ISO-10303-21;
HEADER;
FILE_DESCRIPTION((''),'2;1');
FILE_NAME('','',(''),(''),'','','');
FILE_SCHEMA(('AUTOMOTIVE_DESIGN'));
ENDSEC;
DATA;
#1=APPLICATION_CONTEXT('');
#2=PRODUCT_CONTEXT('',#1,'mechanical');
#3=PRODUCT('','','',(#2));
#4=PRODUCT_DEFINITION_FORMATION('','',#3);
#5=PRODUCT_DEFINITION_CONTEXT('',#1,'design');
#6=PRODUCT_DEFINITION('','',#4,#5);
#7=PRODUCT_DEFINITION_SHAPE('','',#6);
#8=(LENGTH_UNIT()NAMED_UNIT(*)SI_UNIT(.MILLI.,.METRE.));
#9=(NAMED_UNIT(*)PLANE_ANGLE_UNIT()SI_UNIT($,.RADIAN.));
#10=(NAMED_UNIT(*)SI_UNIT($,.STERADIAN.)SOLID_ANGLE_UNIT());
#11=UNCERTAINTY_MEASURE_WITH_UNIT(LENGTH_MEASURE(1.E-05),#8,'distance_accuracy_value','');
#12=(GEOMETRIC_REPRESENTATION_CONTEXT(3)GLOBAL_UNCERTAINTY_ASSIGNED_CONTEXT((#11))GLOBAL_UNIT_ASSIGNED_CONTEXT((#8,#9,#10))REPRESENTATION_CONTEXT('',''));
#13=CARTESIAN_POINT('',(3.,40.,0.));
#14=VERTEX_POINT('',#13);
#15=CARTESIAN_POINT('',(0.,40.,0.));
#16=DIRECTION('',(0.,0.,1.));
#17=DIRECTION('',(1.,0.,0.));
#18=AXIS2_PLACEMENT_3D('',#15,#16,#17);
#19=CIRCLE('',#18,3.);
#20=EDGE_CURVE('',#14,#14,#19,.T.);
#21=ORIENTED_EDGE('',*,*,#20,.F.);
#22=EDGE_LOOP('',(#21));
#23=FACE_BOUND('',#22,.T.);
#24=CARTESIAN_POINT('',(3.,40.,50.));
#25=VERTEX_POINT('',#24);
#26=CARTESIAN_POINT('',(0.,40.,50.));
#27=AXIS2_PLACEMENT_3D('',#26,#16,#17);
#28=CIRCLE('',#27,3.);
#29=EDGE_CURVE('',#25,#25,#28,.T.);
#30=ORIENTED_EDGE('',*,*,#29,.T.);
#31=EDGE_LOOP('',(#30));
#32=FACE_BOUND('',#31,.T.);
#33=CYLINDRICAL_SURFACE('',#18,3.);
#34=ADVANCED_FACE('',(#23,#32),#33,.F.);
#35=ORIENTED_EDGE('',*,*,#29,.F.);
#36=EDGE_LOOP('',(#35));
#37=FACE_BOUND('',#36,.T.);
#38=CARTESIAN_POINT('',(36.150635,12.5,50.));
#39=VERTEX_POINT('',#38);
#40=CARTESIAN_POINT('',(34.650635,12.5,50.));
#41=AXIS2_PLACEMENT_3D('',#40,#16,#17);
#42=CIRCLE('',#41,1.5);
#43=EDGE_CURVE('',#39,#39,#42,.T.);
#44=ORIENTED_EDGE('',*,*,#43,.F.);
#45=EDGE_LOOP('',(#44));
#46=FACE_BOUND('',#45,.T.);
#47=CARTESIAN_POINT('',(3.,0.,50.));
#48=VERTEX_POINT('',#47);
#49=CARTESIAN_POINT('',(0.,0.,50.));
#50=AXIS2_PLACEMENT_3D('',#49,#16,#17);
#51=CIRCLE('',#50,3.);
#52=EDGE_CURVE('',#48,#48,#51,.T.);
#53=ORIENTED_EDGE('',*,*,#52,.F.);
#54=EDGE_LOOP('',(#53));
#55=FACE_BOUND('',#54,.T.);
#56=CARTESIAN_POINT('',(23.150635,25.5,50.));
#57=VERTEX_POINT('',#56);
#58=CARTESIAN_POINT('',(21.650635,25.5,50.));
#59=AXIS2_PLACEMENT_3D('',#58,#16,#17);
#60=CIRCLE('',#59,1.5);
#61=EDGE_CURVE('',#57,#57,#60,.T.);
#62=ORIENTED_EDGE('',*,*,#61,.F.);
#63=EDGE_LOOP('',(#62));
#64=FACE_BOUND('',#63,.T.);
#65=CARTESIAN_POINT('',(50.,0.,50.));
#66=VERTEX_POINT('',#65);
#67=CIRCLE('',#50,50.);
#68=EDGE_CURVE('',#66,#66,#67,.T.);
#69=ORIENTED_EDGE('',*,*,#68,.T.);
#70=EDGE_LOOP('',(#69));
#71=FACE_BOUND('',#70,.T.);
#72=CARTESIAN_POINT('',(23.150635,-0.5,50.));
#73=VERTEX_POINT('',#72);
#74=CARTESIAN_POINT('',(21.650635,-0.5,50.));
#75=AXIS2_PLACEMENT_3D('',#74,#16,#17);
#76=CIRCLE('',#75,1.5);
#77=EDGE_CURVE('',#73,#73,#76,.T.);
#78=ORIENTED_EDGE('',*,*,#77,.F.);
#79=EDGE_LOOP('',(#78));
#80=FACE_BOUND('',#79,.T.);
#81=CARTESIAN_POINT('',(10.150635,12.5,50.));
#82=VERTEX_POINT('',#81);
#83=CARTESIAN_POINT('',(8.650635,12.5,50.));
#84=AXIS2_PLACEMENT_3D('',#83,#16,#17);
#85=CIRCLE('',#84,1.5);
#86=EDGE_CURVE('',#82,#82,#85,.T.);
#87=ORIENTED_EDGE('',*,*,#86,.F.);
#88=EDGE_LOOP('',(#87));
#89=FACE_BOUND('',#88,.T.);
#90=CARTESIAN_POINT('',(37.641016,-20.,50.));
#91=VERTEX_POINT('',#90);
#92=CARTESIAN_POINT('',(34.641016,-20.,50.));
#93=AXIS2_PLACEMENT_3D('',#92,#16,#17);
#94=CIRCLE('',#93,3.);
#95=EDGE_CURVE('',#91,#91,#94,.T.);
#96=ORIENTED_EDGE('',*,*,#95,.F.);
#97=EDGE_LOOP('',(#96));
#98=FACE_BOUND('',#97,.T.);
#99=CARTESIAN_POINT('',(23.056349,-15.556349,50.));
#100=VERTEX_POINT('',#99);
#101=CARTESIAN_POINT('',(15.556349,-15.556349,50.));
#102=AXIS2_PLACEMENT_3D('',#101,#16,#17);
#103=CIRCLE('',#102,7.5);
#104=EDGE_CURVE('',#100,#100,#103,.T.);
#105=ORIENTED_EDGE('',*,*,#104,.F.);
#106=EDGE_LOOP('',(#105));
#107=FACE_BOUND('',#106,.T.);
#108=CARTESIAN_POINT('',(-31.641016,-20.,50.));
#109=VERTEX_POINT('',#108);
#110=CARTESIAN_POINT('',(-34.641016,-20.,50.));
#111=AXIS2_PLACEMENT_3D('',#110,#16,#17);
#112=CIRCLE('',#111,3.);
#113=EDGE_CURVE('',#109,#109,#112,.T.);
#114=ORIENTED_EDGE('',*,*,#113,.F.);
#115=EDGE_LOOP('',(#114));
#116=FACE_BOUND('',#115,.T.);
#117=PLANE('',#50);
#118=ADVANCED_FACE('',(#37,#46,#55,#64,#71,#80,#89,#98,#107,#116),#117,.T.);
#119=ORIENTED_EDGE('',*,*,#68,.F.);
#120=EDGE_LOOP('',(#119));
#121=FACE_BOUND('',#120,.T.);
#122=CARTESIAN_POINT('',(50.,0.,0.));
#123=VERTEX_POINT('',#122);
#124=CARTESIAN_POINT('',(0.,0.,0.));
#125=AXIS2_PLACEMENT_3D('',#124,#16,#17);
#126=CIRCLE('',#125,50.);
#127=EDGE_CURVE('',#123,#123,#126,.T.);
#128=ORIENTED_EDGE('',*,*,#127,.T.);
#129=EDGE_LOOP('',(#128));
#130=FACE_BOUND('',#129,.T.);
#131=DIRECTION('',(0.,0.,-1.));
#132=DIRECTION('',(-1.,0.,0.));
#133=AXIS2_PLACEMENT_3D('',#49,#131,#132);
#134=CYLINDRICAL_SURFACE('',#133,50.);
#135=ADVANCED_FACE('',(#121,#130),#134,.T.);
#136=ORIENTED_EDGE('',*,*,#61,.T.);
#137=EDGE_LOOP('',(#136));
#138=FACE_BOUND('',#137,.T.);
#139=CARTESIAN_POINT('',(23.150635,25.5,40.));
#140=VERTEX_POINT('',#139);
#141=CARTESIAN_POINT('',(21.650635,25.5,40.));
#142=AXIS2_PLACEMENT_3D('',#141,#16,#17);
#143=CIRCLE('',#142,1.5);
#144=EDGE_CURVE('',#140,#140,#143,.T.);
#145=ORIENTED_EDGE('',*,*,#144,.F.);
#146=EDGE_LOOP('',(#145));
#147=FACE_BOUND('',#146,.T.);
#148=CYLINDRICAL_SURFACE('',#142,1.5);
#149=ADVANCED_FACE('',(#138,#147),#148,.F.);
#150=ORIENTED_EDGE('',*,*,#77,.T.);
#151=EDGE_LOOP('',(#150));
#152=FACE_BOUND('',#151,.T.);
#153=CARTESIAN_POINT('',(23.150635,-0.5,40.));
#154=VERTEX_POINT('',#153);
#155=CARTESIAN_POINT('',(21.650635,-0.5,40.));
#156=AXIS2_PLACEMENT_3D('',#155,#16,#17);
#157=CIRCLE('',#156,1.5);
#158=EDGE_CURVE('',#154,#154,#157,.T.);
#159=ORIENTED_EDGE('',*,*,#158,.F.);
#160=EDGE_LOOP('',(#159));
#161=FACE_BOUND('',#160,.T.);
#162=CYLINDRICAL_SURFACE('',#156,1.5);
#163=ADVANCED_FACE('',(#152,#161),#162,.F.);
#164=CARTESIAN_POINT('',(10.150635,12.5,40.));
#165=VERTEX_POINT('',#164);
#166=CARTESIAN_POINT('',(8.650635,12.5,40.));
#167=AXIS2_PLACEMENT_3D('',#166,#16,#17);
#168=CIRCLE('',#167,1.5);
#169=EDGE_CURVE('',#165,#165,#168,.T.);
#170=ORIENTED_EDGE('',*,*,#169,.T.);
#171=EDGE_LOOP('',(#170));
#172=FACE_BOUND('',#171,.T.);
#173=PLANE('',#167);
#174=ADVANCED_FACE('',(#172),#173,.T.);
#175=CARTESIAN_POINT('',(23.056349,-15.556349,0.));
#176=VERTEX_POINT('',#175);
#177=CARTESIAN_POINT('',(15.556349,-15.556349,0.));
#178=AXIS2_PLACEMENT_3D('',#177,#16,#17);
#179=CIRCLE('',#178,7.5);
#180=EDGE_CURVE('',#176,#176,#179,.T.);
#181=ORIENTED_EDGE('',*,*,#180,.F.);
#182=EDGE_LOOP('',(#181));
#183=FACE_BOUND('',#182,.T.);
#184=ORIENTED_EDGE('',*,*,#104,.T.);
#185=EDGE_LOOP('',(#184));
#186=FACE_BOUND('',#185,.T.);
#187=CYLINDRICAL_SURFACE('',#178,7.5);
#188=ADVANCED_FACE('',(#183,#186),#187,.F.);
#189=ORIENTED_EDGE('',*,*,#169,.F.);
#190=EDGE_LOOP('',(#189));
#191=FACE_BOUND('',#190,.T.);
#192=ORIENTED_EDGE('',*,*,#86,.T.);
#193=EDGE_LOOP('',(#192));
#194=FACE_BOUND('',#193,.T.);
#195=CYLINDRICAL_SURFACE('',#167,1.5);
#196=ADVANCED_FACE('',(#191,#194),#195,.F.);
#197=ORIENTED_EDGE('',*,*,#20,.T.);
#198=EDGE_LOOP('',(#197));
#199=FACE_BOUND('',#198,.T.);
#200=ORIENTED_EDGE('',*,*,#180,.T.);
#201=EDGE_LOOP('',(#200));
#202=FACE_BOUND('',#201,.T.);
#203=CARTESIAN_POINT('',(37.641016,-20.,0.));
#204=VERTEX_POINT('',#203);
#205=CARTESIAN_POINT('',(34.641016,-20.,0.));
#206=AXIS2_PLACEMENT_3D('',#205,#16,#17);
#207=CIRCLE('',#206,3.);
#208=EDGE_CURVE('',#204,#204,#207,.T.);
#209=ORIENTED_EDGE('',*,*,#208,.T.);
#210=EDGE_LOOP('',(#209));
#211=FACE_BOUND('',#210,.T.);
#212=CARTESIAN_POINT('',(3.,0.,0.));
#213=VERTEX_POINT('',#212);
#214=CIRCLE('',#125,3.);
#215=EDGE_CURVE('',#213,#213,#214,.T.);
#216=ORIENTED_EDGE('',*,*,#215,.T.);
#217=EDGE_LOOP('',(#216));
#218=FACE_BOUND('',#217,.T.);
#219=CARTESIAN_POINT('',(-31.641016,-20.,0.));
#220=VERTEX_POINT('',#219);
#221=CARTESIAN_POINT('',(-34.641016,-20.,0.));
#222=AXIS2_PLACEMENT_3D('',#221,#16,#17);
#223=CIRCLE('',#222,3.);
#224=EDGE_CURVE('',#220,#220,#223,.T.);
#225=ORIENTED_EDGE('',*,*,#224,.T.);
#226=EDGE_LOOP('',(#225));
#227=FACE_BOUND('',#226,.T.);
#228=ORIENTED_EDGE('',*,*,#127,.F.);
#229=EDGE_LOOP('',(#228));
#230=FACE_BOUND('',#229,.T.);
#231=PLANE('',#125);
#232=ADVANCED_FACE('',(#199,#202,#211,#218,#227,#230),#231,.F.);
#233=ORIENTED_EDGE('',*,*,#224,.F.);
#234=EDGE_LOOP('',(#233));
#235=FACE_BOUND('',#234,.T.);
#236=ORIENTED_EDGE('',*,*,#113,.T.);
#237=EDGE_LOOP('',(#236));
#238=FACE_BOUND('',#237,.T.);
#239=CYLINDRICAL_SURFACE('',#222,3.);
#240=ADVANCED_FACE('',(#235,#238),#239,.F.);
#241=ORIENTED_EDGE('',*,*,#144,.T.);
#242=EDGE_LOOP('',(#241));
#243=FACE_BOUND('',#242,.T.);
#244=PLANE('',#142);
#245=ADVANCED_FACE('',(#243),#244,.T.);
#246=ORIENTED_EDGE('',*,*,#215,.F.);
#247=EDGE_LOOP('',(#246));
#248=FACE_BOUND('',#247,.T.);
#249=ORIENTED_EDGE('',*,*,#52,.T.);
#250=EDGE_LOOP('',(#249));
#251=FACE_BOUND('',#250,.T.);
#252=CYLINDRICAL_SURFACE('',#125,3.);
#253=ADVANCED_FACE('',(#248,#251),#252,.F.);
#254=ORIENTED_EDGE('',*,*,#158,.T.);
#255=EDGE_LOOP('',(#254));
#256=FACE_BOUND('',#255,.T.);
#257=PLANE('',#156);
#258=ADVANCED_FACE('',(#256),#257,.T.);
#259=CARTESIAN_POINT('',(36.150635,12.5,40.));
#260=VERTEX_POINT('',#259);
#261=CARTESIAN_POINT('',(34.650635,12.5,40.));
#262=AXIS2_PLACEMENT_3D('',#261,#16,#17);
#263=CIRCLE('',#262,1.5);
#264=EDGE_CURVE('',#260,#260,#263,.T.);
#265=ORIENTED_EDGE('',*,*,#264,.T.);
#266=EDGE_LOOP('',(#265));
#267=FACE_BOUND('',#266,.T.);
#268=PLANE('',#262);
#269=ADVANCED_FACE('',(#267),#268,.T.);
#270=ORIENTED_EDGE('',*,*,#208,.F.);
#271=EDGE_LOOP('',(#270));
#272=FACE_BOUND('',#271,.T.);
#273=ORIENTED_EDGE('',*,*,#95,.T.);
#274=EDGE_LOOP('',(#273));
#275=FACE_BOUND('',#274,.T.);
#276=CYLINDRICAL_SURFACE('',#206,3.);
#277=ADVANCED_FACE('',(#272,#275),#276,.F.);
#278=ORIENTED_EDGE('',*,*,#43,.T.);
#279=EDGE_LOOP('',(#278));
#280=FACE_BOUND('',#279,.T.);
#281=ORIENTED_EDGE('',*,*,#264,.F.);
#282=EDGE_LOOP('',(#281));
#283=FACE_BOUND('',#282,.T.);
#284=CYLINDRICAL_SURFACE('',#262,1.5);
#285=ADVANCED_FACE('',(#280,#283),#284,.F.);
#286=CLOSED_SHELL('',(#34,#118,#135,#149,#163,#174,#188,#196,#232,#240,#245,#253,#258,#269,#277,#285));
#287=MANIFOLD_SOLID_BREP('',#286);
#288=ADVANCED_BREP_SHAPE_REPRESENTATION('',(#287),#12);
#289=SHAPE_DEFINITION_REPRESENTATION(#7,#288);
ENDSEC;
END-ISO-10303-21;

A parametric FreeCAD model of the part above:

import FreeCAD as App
import Part
import Sketcher
from FreeCAD import Vector
Q = App.Units.Quantity

doc = App.newDocument("Part")
params = doc.addObject("Spreadsheet::Sheet", "Params")
for row, (alias, value) in enumerate([
    ("sketch1_diameter", "100 mm"),
    ("pad1_length", "50 mm"),
    ("sketch2_diameter", "6 mm"),
    ("sketch3_diameter", "3 mm"),
    ("pocket2_length", "10 mm"),
    ("sketch4_diameter", "15 mm"),
], start=1):
    params.set(f"A{row}", alias)
    params.set(f"B{row}", "=" + value)
    params.setAlias(f"B{row}", alias)

body = doc.addObject("PartDesign::Body", "Body")

sketch1 = body.newObject("Sketcher::SketchObject", "Sketch")
sketch1.AttachmentSupport = (doc.getObject("XY_Plane"), [""])
sketch1.MapMode = "FlatFace"
sketch1.addGeometry(Part.Circle(Vector(0, 0, 0), Vector(0, 0, 1), 50), False)
sketch1.addConstraint([
    Sketcher.Constraint("Coincident", 0, 3, -1, 1),
    Sketcher.Constraint("Diameter", 0, Q("100 mm")),
])
sketch1.setExpression("Constraints[1]", "Params.sketch1_diameter")
pad1 = body.newObject("PartDesign::Pad", "Pad")
pad1.Profile = sketch1
pad1.setExpression("Length", "Params.pad1_length")

sketch2 = body.newObject("Sketcher::SketchObject", "Sketch001")
sketch2.AttachmentSupport = (doc.getObject("XY_Plane"), [""])
sketch2.MapMode = "FlatFace"
sketch2.AttachmentOffset = App.Placement(Vector(0, 0, 50), App.Rotation())
sketch2.addGeometry([
    Part.Circle(Vector(0, 40, 0), Vector(0, 0, 1), 3),
    Part.Circle(Vector(34.641016, -20, 0), Vector(0, 0, 1), 3),
    Part.Circle(Vector(-34.641016, -20, 0), Vector(0, 0, 1), 3),
    Part.Circle(Vector(0, 0, 0), Vector(0, 0, 1), 3),
], False)
sketch2.addConstraint([
    Sketcher.Constraint("Coincident", 3, 3, -1, 1),
    Sketcher.Constraint("Equal", 0, 1),
    Sketcher.Constraint("Equal", 1, 2),
    Sketcher.Constraint("Equal", 2, 3),
    Sketcher.Constraint("Symmetric", 1, 3, 2, 3, -2),
    Sketcher.Constraint("PointOnObject", 0, 3, -2),
    Sketcher.Constraint("Diameter", 0, Q("6 mm")),
    Sketcher.Constraint("DistanceY", -1, 1, 0, 3, Q("40 mm")),
    Sketcher.Constraint("DistanceY", 1, 3, -1, 1, Q("20 mm")),
    Sketcher.Constraint("DistanceX", -1, 1, 1, 3, Q("34.641016 mm")),
])
sketch2.setExpression("Constraints[6]", "Params.sketch2_diameter")
pocket1 = body.newObject("PartDesign::Pocket", "Pocket")
pocket1.Profile = sketch2
pocket1.Type = "ThroughAll"

sketch3 = body.newObject("Sketcher::SketchObject", "Sketch002")
sketch3.AttachmentSupport = (doc.getObject("XY_Plane"), [""])
sketch3.MapMode = "FlatFace"
sketch3.AttachmentOffset = App.Placement(Vector(0, 0, 50), App.Rotation())
sketch3.addGeometry([
    Part.Circle(Vector(21.650635, 25.5, 0), Vector(0, 0, 1), 1.5),
    Part.Circle(Vector(34.650635, 12.5, 0), Vector(0, 0, 1), 1.5),
    Part.Circle(Vector(21.650635, -0.5, 0), Vector(0, 0, 1), 1.5),
    Part.Circle(Vector(8.650635, 12.5, 0), Vector(0, 0, 1), 1.5),
], False)
sketch3.addConstraint([
    Sketcher.Constraint("Equal", 0, 1),
    Sketcher.Constraint("Equal", 1, 2),
    Sketcher.Constraint("Equal", 2, 3),
    Sketcher.Constraint("Horizontal", 1, 3, 3, 3),
    Sketcher.Constraint("Vertical", 0, 3, 2, 3),
    Sketcher.Constraint("Diameter", 0, Q("3 mm")),
    Sketcher.Constraint("DistanceX", 0, 3, 1, 3, Q("13 mm")),
    Sketcher.Constraint("DistanceY", 1, 3, 0, 3, Q("13 mm")),
    Sketcher.Constraint("DistanceY", 2, 3, 1, 3, Q("13 mm")),
    Sketcher.Constraint("DistanceX", 3, 3, 0, 3, Q("13 mm")),
    Sketcher.Constraint("DistanceY", -1, 1, 0, 3, Q("25.5 mm")),
    Sketcher.Constraint("DistanceX", -1, 1, 0, 3, Q("21.650635 mm")),
])
sketch3.setExpression("Constraints[5]", "Params.sketch3_diameter")
pocket2 = body.newObject("PartDesign::Pocket", "Pocket001")
pocket2.Profile = sketch3
pocket2.setExpression("Length", "Params.pocket2_length")

sketch4 = body.newObject("Sketcher::SketchObject", "Sketch003")
sketch4.AttachmentSupport = (doc.getObject("XY_Plane"), [""])
sketch4.MapMode = "FlatFace"
sketch4.AttachmentOffset = App.Placement(Vector(0, 0, 50), App.Rotation())
sketch4.addGeometry(Part.Circle(Vector(15.556349, -15.556349, 0), Vector(0, 0, 1), 7.5), False)
sketch4.addConstraint([
    Sketcher.Constraint("Diameter", 0, Q("15 mm")),
    Sketcher.Constraint("DistanceX", -1, 1, 0, 3, Q("15.556349 mm")),
    Sketcher.Constraint("DistanceY", 0, 3, -1, 1, Q("15.556349 mm")),
])
sketch4.setExpression("Constraints[0]", "Params.sketch4_diameter")
pocket3 = body.newObject("PartDesign::Pocket", "Pocket002")
pocket3.Profile = sketch4
pocket3.Type = "ThroughAll"

doc.recompute()
